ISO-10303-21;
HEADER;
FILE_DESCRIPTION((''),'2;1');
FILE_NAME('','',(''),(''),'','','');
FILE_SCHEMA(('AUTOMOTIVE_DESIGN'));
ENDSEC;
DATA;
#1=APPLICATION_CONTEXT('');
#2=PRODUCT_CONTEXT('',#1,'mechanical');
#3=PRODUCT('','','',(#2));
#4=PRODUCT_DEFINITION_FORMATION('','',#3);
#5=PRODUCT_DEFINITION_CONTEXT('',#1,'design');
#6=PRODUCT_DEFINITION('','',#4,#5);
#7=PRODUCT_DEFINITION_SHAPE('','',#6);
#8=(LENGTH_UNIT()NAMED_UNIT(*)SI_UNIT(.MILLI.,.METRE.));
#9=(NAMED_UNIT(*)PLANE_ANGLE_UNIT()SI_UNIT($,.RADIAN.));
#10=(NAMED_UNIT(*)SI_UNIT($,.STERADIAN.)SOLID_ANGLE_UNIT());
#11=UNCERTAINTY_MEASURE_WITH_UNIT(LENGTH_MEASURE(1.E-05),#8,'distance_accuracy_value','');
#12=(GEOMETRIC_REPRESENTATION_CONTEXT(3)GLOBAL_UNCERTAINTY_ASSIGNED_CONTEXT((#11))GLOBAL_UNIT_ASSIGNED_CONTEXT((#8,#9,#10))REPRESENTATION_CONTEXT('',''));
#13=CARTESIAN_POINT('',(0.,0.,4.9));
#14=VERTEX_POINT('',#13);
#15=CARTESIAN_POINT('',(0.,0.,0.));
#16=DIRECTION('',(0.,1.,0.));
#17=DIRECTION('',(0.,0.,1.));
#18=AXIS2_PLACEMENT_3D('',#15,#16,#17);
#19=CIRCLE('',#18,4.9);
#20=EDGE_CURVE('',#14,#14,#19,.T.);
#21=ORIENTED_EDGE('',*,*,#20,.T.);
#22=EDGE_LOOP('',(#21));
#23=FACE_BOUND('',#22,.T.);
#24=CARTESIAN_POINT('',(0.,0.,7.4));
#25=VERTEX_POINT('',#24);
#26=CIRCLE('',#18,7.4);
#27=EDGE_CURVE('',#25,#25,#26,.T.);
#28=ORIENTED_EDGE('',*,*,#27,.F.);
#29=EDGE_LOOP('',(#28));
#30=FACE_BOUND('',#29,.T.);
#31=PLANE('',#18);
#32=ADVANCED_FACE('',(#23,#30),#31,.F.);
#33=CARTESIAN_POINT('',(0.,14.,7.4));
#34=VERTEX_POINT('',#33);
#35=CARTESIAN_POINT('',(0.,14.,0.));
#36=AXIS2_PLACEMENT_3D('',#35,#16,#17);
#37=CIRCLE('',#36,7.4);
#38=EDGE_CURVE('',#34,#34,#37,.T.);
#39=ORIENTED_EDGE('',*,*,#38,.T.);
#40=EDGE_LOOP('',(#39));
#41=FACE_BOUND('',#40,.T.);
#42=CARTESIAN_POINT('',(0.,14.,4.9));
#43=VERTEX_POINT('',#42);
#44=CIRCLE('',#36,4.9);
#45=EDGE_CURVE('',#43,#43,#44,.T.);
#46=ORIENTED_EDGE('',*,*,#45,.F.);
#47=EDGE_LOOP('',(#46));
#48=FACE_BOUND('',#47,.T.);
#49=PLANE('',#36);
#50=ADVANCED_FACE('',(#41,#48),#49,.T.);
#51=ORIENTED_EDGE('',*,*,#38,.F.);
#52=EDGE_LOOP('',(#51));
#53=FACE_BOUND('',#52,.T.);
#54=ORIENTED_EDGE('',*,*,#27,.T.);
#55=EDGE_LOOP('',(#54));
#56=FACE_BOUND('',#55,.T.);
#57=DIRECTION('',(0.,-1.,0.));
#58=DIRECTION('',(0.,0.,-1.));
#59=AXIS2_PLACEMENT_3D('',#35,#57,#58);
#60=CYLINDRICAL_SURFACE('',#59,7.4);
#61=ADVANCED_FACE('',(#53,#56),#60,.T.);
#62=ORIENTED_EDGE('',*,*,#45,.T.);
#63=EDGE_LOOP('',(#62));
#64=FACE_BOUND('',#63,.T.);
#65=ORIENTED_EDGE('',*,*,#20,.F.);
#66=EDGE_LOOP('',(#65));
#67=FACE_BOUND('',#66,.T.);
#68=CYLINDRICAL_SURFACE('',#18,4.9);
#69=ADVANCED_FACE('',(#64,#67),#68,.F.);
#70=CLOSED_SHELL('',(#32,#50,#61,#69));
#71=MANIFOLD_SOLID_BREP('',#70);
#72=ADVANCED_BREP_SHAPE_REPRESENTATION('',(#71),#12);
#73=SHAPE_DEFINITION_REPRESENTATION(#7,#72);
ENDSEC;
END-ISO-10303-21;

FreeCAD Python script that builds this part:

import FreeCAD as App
import Part
import Sketcher

V = App.Vector
Q = App.Units.Quantity

doc = App.newDocument("Part")
body = doc.addObject("PartDesign::Body", "Body")

# Sketch on XZ plane
sketch1 = doc.addObject("Sketcher::SketchObject", "Sketch")
body.addObject(sketch1)
sketch1.AttachmentSupport = (doc.XZ_Plane, [""])
sketch1.MapMode = "FlatFace"
sketch1.addGeometry(Part.Circle(V(0, 0, 0), V(0, 0, 1), 7), False)
sketch1.addConstraint([
    Sketcher.Constraint("Coincident", 0, 3, -1, 1),
    Sketcher.Constraint("Diameter", 0, Q("14.8 mm")),
])
pad1 = doc.addObject("PartDesign::Pad", "Pad")
body.addObject(pad1)
pad1.Profile = sketch1
pad1.Length = 14
pad1.Reversed = True

# Sketch on XZ plane
sketch2 = doc.addObject("Sketcher::SketchObject", "Sketch001")
body.addObject(sketch2)
sketch2.AttachmentSupport = (doc.XZ_Plane, [""])
sketch2.MapMode = "FlatFace"
sketch2.AttachmentOffset = App.Placement(V(0, 0, -14), App.Rotation())
sketch2.addGeometry(Part.Circle(V(0, 0, 0), V(0, 0, 1), 4.9), False)
sketch2.addConstraint([
    Sketcher.Constraint("Coincident", 0, 3, -1, 1),
    Sketcher.Constraint("Diameter", 0, Q("9.8 mm")),
])
pocket1 = doc.addObject("PartDesign::Pocket", "Pocket")
body.addObject(pocket1)
pocket1.Profile = sketch2
pocket1.Type = "ThroughAll"
pocket1.Reversed = True

doc.recompute()
